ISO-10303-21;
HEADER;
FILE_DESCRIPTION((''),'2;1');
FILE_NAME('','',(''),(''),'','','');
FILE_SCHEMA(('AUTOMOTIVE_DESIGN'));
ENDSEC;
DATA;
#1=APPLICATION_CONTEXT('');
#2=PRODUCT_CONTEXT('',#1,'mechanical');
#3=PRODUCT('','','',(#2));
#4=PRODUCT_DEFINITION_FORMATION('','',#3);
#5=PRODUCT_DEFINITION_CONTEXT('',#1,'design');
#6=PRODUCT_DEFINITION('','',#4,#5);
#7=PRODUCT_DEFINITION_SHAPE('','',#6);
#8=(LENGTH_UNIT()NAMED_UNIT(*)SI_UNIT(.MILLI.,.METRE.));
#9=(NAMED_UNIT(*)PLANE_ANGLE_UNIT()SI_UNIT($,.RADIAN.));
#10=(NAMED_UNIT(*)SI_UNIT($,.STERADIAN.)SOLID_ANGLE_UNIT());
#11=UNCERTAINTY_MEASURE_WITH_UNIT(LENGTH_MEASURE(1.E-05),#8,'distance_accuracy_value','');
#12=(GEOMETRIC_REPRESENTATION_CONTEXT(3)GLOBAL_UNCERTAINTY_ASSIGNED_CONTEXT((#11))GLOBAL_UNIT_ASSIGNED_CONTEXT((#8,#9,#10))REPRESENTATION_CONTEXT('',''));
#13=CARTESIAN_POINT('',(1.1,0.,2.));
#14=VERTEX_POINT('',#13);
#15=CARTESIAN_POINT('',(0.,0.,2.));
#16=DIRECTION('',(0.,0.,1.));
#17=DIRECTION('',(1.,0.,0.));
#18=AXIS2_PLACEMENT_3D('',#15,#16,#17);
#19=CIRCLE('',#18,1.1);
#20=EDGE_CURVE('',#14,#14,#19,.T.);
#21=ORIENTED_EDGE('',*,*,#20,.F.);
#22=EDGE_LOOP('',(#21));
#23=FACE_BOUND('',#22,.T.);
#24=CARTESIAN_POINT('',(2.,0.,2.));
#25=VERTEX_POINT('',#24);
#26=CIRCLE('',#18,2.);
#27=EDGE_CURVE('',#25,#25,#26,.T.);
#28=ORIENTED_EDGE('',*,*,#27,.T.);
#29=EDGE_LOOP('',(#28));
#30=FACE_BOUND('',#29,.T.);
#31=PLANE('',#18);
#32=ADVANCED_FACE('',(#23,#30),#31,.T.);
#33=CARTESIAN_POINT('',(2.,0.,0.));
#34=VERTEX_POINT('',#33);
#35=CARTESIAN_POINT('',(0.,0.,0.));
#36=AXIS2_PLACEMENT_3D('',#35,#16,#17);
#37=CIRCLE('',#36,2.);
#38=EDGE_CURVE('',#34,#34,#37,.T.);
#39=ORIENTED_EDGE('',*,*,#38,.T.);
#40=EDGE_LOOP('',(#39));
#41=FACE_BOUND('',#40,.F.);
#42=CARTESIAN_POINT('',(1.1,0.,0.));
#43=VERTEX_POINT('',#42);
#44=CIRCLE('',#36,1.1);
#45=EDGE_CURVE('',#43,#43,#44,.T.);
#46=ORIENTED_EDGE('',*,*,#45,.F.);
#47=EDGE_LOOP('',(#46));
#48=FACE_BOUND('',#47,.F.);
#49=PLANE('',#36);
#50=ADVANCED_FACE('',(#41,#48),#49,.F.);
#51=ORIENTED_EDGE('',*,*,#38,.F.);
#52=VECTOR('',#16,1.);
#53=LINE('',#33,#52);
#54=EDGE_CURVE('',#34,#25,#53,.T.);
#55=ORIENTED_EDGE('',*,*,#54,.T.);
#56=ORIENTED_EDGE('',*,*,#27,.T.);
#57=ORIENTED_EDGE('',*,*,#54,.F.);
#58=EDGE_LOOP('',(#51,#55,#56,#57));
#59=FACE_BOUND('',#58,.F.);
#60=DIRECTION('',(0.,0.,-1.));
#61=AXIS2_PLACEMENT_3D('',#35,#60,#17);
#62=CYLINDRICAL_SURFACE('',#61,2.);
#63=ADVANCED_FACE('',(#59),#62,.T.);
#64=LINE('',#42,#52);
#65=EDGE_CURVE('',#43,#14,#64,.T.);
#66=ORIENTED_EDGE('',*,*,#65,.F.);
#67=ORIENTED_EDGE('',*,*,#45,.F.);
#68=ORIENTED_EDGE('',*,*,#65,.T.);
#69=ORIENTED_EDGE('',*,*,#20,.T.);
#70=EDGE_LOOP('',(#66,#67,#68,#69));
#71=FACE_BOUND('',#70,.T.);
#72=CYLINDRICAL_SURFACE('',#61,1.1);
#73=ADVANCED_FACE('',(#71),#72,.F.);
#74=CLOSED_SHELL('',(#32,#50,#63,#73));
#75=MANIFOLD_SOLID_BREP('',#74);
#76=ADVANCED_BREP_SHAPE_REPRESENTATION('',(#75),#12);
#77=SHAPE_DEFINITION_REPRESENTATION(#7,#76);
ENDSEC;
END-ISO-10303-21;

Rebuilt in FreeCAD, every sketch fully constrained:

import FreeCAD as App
import Part
import Sketcher

V = App.Vector

doc = App.newDocument("Part")
body = doc.addObject("PartDesign::Body", "Body")

# Sketch on XY plane
sketch1 = body.newObject("Sketcher::SketchObject", "Sketch")
sketch1.AttachmentSupport = (doc.getObject("XY_Plane"), [""])
sketch1.MapMode = "FlatFace"
sketch1.addGeometry([
    Part.Circle(V(0, 0, 0), V(0, 0, 1), 2),
    Part.Circle(V(0, 0, 0), V(0, 0, 1), 1.1),
], False)
sketch1.addConstraint([
    Sketcher.Constraint("Coincident", 0, 3, -1, 1),
    Sketcher.Constraint("Coincident", 1, 3, -1, 1),
    Sketcher.Constraint("Diameter", 0, 4.0),
    Sketcher.Constraint("Diameter", 1, 2.2),
])
pad1 = body.newObject("PartDesign::Pad", "Pad")
pad1.Profile = sketch1
pad1.Length = 2

doc.recompute()
